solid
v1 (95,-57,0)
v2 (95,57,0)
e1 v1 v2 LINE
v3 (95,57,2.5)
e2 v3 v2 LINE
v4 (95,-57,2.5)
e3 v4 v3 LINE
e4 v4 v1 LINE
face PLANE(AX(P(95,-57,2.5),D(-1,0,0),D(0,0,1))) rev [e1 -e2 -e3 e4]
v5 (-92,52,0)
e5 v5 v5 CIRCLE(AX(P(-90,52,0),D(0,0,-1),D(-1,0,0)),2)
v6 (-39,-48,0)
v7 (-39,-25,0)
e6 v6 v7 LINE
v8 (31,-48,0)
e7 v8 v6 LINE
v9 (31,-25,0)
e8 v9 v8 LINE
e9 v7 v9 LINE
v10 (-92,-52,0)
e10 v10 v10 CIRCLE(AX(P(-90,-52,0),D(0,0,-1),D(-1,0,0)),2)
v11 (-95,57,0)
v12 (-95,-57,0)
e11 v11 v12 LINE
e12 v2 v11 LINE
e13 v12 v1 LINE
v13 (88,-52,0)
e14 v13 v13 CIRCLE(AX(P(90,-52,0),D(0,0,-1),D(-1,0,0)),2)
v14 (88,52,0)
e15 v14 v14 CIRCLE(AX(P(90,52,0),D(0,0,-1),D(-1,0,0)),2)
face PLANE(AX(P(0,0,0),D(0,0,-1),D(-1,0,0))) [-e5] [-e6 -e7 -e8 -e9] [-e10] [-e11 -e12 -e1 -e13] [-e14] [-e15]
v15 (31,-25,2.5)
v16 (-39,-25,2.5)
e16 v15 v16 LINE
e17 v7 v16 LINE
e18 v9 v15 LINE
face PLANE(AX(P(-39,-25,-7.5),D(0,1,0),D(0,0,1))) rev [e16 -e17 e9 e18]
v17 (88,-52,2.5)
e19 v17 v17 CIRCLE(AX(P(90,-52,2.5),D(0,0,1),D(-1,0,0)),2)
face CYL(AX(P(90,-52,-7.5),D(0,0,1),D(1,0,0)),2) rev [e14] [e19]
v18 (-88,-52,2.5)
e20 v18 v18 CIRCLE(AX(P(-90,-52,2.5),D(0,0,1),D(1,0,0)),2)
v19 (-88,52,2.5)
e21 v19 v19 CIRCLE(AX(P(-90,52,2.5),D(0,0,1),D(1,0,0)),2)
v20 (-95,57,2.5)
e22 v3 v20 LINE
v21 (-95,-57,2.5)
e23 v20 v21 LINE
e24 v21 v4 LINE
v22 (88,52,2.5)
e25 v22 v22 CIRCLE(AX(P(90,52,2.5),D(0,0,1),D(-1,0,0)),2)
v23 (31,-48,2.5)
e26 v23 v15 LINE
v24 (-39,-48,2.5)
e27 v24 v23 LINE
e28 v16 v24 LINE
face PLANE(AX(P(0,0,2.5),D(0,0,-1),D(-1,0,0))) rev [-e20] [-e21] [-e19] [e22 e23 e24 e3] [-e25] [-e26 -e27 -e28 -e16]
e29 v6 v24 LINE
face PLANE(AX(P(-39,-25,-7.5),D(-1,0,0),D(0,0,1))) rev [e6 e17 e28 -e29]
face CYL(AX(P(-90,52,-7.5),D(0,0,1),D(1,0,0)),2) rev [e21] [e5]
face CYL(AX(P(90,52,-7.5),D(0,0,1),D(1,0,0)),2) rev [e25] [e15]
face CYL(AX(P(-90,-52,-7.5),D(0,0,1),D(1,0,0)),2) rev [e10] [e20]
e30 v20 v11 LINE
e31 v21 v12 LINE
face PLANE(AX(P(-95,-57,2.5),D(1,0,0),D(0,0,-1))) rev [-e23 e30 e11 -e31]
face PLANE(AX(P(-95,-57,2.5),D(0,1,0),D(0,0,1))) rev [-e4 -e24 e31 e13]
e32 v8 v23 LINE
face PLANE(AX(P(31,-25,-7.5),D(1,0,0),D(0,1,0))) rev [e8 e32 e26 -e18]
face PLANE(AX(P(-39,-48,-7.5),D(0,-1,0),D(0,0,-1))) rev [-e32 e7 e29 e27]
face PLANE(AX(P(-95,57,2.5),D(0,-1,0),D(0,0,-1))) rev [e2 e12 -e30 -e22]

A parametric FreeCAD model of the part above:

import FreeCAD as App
import Part
import Sketcher
from FreeCAD import Vector


def add_polygon(sketch, points):
    """Adds a closed chain of lines whose ends are joined by coincident constraints."""
    first, n = sketch.GeometryCount, len(points)
    for a, b in zip(points, points[1:] + points[:1]):
        sketch.addGeometry(Part.LineSegment(App.Vector(*a, 0), App.Vector(*b, 0)), False)
    for i in range(n):
        sketch.addConstraint(Sketcher.Constraint("Coincident", first + i, 2, first + (i + 1) % n, 1))

doc = App.newDocument("Part")
body = doc.addObject("PartDesign::Body", "Body")

sketch1 = doc.addObject("Sketcher::SketchObject", "Sketch")
body.addObject(sketch1)
sketch1.AttachmentSupport = (doc.XY_Plane, [""])
sketch1.MapMode = "FlatFace"
add_polygon(sketch1, [(-95, 57), (-95, -57), (95, -57), (95, 57)])
sketch1.addConstraint(Sketcher.Constraint("Vertical", 0))
sketch1.addConstraint(Sketcher.Constraint("Horizontal", 1))
sketch1.addConstraint(Sketcher.Constraint("Vertical", 2))
sketch1.addConstraint(Sketcher.Constraint("Horizontal", 3))
sketch1.addConstraint(Sketcher.Constraint("Symmetric", 0, 2, 2, 2, -1, 1))
sketch1.addConstraint(Sketcher.Constraint("DistanceX", 1, 1, 1, 2, 190.0))
sketch1.addConstraint(Sketcher.Constraint("DistanceY", 0, 2, 0, 1, 114.0))
pad1 = doc.addObject("PartDesign::Pad", "Pad")
body.addObject(pad1)
pad1.Profile = sketch1
pad1.Length = 2.5

sketch2 = doc.addObject("Sketcher::SketchObject", "Sketch001")
body.addObject(sketch2)
sketch2.AttachmentSupport = (doc.XY_Plane, [""])
sketch2.MapMode = "FlatFace"
sketch2.AttachmentOffset = App.Placement(Vector(0, 0, 2.5), App.Rotation())
add_polygon(sketch2, [(-39, -25), (-39, -48), (31, -48), (31, -25)])
sketch2.addConstraint(Sketcher.Constraint("Vertical", 0))
sketch2.addConstraint(Sketcher.Constraint("Horizontal", 1))
sketch2.addConstraint(Sketcher.Constraint("Vertical", 2))
sketch2.addConstraint(Sketcher.Constraint("Horizontal", 3))
sketch2.addConstraint(Sketcher.Constraint("DistanceX", 1, 1, 1, 2, 70.0))
sketch2.addConstraint(Sketcher.Constraint("DistanceY", 0, 2, 0, 1, 23.0))
sketch2.addConstraint(Sketcher.Constraint("DistanceX", 0, 2, -1, 1, 39.0))
sketch2.addConstraint(Sketcher.Constraint("DistanceY", 0, 2, -1, 1, 48.0))
pocket1 = doc.addObject("PartDesign::Pocket", "Pocket")
body.addObject(pocket1)
pocket1.Profile = sketch2
pocket1.Length = 10

sketch3 = doc.addObject("Sketcher::SketchObject", "Sketch002")
body.addObject(sketch3)
sketch3.AttachmentSupport = (doc.XY_Plane, [""])
sketch3.MapMode = "FlatFace"
sketch3.AttachmentOffset = App.Placement(Vector(0, 0, 2.5), App.Rotation())
sketch3.addGeometry(Part.Circle(Vector(-90, 52, 0), Vector(0, 0, 1), 2), False)
sketch3.addGeometry(Part.Circle(Vector(90, 52, 0), Vector(0, 0, 1), 2), False)
sketch3.addGeometry(Part.Circle(Vector(-90, -52, 0), Vector(0, 0, 1), 2), False)
sketch3.addGeometry(Part.Circle(Vector(90, -52, 0), Vector(0, 0, 1), 2), False)
sketch3.addConstraint(Sketcher.Constraint("Equal", 0, 1))
sketch3.addConstraint(Sketcher.Constraint("Equal", 1, 2))
sketch3.addConstraint(Sketcher.Constraint("Equal", 2, 3))
sketch3.addConstraint(Sketcher.Constraint("Symmetric", 1, 3, 2, 3, -1, 1))
sketch3.addConstraint(Sketcher.Constraint("Symmetric", 0, 3, 3, 3, -1, 1))
sketch3.addConstraint(Sketcher.Constraint("Symmetric", 0, 3, 1, 3, -2))
sketch3.addConstraint(Sketcher.Constraint("Diameter", 0, 4.0))
sketch3.addConstraint(Sketcher.Constraint("DistanceX", 0, 3, -1, 1, 90.0))
sketch3.addConstraint(Sketcher.Constraint("DistanceY", -1, 1, 0, 3, 52.0))
pocket2 = doc.addObject("PartDesign::Pocket", "Pocket001")
body.addObject(pocket2)
pocket2.Profile = sketch3
pocket2.Length = 10

doc.recompute()
